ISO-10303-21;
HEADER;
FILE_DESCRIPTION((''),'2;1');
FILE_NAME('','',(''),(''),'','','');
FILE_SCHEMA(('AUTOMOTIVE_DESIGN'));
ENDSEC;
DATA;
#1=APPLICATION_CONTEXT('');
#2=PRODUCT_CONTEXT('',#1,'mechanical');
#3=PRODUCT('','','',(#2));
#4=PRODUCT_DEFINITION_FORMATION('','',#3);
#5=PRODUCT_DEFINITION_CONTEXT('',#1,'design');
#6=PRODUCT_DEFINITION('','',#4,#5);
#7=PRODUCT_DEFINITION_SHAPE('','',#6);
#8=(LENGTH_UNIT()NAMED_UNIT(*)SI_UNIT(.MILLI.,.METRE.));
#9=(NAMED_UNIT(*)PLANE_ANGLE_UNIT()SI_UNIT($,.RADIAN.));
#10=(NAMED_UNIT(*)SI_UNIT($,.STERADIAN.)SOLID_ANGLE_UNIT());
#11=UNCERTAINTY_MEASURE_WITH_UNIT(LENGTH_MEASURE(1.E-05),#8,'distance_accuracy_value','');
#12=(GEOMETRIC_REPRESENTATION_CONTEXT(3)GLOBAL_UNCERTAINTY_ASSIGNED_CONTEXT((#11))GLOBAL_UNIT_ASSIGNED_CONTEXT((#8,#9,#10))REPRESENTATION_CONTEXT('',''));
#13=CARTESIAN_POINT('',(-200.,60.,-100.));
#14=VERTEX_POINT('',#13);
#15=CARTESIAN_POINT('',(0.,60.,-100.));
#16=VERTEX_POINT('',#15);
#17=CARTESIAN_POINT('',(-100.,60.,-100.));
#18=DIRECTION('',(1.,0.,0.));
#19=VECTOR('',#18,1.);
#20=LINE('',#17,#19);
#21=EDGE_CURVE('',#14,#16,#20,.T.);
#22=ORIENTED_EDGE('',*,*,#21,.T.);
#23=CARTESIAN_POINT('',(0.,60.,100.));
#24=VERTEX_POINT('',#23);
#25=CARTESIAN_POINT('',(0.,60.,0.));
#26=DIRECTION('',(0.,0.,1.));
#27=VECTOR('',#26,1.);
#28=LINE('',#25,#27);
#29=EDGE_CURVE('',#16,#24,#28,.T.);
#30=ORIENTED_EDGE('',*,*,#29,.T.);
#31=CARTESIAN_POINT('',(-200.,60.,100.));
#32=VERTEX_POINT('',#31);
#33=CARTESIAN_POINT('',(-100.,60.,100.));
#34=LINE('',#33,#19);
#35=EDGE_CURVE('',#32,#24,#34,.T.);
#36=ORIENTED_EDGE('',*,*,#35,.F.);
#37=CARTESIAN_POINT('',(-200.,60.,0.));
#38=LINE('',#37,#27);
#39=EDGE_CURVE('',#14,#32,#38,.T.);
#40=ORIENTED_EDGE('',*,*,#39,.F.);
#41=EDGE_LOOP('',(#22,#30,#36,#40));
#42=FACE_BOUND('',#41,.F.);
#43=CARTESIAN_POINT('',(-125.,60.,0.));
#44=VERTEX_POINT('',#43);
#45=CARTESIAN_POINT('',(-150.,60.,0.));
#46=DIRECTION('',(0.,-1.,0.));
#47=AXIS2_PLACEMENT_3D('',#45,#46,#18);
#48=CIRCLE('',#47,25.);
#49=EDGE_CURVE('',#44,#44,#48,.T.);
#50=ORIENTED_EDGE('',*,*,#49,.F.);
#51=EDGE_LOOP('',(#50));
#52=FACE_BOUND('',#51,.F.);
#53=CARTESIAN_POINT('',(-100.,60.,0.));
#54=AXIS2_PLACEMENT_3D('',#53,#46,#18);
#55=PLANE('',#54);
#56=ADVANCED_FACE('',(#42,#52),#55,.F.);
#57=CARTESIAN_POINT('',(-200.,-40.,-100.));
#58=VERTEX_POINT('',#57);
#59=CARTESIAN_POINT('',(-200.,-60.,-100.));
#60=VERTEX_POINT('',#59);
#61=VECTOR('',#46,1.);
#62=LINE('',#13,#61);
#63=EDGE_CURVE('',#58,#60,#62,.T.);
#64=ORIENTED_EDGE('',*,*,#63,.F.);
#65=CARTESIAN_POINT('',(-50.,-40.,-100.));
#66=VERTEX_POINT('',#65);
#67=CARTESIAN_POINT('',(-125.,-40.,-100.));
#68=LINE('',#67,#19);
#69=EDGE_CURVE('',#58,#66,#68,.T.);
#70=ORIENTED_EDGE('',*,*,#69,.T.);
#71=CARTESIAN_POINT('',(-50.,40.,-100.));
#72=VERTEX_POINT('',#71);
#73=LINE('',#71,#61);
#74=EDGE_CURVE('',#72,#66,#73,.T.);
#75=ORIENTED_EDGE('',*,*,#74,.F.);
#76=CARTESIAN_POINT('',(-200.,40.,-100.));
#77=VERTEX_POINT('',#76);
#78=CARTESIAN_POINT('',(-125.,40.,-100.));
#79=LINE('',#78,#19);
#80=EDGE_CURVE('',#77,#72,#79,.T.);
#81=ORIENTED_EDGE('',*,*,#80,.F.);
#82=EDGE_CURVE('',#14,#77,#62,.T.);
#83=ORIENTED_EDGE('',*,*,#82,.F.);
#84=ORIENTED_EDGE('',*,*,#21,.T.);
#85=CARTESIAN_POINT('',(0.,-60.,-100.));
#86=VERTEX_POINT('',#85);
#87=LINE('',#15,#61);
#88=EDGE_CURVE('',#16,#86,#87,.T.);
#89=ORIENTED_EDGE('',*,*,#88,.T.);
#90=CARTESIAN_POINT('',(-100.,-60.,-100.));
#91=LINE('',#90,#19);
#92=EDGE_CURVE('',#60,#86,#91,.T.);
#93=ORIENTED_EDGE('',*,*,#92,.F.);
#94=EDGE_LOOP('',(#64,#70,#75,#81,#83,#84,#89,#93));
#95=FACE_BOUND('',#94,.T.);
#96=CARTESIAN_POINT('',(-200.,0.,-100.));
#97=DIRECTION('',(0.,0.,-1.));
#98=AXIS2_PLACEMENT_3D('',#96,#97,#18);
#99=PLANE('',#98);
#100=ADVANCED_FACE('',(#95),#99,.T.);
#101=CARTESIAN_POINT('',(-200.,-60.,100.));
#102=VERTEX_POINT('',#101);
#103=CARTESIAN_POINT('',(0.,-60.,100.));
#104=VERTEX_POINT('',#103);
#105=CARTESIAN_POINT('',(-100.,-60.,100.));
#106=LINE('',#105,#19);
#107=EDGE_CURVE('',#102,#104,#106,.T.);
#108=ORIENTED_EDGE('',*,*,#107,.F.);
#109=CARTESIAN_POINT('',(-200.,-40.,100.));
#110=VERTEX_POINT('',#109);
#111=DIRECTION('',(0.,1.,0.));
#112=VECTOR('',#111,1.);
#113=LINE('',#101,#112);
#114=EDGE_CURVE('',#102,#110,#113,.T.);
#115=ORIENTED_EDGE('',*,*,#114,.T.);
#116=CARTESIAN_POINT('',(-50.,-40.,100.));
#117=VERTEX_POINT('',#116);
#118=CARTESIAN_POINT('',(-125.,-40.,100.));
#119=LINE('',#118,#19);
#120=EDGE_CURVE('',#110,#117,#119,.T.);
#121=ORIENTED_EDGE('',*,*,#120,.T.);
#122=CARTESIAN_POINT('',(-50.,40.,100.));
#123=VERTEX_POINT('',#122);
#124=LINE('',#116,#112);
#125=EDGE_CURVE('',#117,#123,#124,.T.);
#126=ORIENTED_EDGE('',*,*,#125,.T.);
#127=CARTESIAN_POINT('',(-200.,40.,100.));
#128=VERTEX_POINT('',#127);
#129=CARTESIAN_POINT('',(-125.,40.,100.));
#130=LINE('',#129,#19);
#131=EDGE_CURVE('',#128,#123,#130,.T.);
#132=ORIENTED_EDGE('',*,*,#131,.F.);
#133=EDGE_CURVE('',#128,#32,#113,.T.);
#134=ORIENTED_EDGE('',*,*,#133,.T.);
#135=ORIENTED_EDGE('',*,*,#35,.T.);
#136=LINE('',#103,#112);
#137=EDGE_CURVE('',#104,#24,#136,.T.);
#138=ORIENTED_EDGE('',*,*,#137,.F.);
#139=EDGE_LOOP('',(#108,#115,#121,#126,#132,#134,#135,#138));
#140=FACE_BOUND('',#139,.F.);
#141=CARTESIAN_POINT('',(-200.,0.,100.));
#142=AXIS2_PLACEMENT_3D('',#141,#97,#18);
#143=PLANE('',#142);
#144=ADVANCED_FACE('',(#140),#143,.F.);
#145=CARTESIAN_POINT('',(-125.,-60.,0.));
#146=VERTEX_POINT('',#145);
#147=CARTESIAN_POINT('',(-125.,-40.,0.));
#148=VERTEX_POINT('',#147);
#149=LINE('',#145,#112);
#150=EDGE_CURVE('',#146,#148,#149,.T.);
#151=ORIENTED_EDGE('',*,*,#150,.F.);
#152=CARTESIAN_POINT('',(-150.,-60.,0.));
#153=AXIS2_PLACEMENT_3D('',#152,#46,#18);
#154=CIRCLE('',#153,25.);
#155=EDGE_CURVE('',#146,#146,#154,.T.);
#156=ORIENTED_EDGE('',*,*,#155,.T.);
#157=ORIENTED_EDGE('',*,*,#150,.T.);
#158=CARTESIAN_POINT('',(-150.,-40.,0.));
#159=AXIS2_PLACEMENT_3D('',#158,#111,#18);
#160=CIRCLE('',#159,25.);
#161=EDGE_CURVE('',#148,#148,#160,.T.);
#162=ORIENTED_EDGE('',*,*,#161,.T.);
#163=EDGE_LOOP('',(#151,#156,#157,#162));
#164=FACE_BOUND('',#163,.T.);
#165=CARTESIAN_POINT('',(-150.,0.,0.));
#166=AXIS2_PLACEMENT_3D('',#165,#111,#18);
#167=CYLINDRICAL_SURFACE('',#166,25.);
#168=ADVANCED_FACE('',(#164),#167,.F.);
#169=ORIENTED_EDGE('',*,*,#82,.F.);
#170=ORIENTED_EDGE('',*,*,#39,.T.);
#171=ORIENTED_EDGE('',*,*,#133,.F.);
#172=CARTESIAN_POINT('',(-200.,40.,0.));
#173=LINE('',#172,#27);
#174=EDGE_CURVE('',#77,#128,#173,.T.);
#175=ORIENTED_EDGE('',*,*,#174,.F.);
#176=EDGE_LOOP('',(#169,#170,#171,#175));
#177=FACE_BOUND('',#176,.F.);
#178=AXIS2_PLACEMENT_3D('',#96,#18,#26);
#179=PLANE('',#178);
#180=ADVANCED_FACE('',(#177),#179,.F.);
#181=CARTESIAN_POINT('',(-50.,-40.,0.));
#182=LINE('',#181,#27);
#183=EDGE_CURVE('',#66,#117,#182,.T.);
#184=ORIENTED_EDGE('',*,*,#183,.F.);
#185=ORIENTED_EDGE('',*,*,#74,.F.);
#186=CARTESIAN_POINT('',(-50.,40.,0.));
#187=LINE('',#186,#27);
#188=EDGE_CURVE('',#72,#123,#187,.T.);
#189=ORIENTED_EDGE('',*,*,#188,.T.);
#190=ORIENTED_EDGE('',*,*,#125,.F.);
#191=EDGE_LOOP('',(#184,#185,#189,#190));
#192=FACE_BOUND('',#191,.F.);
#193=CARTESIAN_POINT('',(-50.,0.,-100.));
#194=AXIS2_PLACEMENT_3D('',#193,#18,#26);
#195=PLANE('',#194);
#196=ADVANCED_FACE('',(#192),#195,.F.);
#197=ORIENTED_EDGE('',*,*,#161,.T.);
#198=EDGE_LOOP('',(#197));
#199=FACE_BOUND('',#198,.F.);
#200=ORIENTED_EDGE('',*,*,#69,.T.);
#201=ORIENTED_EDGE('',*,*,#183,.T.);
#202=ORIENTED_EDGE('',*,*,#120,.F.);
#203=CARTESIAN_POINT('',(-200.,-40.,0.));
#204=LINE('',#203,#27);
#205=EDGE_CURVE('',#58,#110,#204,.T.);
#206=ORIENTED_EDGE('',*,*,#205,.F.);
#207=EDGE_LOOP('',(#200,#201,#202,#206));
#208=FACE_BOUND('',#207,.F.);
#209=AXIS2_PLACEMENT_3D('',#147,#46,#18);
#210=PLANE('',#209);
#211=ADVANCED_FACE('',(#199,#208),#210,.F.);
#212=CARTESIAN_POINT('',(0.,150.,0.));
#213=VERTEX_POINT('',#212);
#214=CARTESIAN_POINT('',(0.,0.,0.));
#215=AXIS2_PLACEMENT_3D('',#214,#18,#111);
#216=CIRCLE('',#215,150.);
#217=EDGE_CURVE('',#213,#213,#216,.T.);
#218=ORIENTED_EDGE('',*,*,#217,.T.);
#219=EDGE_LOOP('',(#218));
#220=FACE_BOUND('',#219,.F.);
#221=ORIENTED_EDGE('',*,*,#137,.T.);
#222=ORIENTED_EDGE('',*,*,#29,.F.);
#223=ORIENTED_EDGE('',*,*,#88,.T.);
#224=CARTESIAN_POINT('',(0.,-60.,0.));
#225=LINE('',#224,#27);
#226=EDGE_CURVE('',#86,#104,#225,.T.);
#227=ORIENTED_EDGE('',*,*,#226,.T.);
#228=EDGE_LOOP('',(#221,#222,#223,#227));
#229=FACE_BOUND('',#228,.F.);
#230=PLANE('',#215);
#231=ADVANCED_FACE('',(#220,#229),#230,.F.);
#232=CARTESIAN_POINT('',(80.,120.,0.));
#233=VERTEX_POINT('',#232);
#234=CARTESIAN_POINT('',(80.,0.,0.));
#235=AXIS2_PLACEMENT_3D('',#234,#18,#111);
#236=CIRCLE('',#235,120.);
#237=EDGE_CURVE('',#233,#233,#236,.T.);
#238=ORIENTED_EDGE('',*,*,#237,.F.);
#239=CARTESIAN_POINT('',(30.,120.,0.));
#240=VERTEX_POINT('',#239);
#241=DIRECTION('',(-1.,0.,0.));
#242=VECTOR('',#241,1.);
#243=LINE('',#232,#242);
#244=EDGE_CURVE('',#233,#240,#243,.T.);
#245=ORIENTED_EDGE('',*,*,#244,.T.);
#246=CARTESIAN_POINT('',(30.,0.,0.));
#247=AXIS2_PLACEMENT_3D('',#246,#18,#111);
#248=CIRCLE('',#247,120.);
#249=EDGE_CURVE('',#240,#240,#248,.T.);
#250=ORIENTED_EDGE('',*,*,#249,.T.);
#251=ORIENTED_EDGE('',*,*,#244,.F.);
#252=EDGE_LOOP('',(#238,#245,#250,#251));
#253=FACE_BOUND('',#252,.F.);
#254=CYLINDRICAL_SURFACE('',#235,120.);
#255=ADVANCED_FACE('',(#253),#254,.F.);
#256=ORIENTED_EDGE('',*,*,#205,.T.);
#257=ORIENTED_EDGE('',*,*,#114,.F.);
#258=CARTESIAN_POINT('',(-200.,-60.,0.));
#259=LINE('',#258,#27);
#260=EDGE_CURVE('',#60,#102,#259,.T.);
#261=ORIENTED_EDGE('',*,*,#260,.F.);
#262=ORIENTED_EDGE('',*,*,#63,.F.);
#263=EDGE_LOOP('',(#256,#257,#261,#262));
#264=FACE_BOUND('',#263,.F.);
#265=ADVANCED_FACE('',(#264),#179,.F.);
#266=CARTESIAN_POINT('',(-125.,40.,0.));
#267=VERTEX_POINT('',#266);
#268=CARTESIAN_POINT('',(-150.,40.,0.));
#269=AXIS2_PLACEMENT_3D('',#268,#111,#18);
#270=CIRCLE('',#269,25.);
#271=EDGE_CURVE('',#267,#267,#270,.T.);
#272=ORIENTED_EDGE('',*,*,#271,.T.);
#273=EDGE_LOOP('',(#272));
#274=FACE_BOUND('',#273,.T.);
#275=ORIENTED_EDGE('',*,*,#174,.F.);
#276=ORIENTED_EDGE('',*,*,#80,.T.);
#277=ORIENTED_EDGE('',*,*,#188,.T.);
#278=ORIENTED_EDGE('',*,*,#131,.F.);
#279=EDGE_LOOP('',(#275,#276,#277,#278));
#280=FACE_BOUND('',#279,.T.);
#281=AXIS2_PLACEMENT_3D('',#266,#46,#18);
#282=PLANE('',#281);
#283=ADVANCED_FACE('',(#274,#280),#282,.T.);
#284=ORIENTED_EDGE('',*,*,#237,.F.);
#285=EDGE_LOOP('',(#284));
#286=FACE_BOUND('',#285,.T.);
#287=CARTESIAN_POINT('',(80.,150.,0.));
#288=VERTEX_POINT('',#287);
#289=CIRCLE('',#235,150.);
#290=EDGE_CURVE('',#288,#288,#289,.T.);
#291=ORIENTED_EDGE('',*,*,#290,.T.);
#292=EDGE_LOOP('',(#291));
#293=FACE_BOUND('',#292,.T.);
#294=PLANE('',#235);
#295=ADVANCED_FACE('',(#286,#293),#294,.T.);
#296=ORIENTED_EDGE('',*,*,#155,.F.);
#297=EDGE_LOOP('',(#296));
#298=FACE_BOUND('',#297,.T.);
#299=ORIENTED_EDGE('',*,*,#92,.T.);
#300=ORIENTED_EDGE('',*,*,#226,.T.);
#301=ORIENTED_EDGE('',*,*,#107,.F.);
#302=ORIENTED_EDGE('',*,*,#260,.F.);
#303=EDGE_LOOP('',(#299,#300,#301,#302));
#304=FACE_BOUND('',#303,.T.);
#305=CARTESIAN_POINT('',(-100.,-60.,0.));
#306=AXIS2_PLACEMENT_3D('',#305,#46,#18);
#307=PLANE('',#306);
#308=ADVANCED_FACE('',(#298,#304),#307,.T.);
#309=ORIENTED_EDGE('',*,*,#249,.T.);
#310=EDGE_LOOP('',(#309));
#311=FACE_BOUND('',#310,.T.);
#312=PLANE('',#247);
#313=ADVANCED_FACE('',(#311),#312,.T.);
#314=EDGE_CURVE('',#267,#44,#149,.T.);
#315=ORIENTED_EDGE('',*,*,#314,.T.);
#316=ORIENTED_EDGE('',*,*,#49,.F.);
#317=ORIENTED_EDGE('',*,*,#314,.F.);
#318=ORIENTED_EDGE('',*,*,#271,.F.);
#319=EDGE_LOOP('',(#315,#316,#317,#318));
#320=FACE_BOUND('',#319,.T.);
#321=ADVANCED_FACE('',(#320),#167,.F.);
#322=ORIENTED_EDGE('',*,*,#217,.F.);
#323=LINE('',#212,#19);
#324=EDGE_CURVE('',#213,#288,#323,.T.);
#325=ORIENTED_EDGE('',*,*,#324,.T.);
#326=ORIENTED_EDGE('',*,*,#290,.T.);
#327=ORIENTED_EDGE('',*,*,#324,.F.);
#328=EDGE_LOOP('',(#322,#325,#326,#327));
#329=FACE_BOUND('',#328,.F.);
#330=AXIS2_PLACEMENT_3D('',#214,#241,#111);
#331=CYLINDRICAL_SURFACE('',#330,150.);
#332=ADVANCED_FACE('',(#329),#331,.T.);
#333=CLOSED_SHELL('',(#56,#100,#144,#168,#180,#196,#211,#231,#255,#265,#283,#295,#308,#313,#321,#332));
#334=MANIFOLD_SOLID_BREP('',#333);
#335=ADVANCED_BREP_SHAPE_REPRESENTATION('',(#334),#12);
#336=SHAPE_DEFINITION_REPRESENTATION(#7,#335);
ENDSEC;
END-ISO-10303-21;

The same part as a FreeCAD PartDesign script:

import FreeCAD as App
import Part
import Sketcher
Q = App.Units.Quantity


def add_polygon(sketch, points):
    """Adds a closed chain of lines whose ends are joined by coincident constraints."""
    first, n = sketch.GeometryCount, len(points)
    for a, b in zip(points, points[1:] + points[:1]):
        sketch.addGeometry(Part.LineSegment(App.Vector(*a, 0), App.Vector(*b, 0)), False)
    for i in range(n):
        sketch.addConstraint(Sketcher.Constraint("Coincident", first + i, 2, first + (i + 1) % n, 1))

doc = App.newDocument("Part")
body = doc.addObject("PartDesign::Body", "Body")

# Sketch on XZ plane
sketch1 = doc.addObject("Sketcher::SketchObject", "Sketch")
body.addObject(sketch1)
sketch1.AttachmentSupport = (doc.XZ_Plane, [""])
sketch1.MapMode = "FlatFace"
add_polygon(sketch1, [(-200, 100), (-200, -100), (0, -100), (0, 100)])  # lines 0-3
sketch1.addGeometry(Part.Circle(App.Vector(-150, 0, 0), App.Vector(0, 0, 1), 25), False)  # 4
sketch1.addConstraint([
    Sketcher.Constraint("Vertical", 0),
    Sketcher.Constraint("Horizontal", 1),
    Sketcher.Constraint("Vertical", 2),
    Sketcher.Constraint("Horizontal", 3),
    Sketcher.Constraint("Symmetric", 1, 2, 2, 2, -1, 1),
    Sketcher.Constraint("PointOnObject", 4, 3, -1),
    Sketcher.Constraint("Equal", 3, 0),
    Sketcher.Constraint("Diameter", 4, Q("50 mm")),
    Sketcher.Constraint("DistanceX", 1, 1, 1, 2, Q("200 mm")),
    Sketcher.Constraint("DistanceX", 4, 3, -1, 1, Q("150 mm")),
])
pad1 = doc.addObject("PartDesign::Pad", "Pad")
body.addObject(pad1)
pad1.Profile = sketch1
pad1.Length = 120
pad1.Midplane = True

# Sketch on XZ plane
sketch2 = doc.addObject("Sketcher::SketchObject", "Sketch001")
body.addObject(sketch2)
sketch2.AttachmentSupport = (doc.XZ_Plane, [""])
sketch2.MapMode = "FlatFace"
add_polygon(sketch2, [(-200, 100), (-200, -100), (-50, -100), (-50, 100)])  # lines 0-3
sketch2.addConstraint([
    Sketcher.Constraint("Vertical", 0),
    Sketcher.Constraint("Horizontal", 1),
    Sketcher.Constraint("Vertical", 2),
    Sketcher.Constraint("Horizontal", 3),
    Sketcher.Constraint("DistanceX", 1, 1, 1, 2, Q("150 mm")),
    Sketcher.Constraint("DistanceY", 0, 2, 0, 1, Q("200 mm")),
    Sketcher.Constraint("DistanceX", 0, 2, -1, 1, Q("200 mm")),
    Sketcher.Constraint("DistanceY", 0, 2, -1, 1, Q("100 mm")),
])
pocket1 = doc.addObject("PartDesign::Pocket", "Pocket")
body.addObject(pocket1)
pocket1.Profile = sketch2
pocket1.Length = 80
pocket1.Midplane = True

# Sketch on YZ plane
sketch3 = doc.addObject("Sketcher::SketchObject", "Sketch002")
body.addObject(sketch3)
sketch3.AttachmentSupport = (doc.YZ_Plane, [""])
sketch3.MapMode = "FlatFace"
sketch3.addGeometry(Part.Circle(App.Vector(0, 0, 0), App.Vector(0, 0, 1), 150), False)
sketch3.addConstraint([
    Sketcher.Constraint("Coincident", 0, 3, -1, 1),
    Sketcher.Constraint("Diameter", 0, Q("300 mm")),
])
pad2 = doc.addObject("PartDesign::Pad", "Pad001")
body.addObject(pad2)
pad2.Profile = sketch3
pad2.Length = 80

# Sketch on YZ plane
sketch4 = doc.addObject("Sketcher::SketchObject", "Sketch003")
body.addObject(sketch4)
sketch4.AttachmentSupport = (doc.YZ_Plane, [""])
sketch4.MapMode = "FlatFace"
sketch4.AttachmentOffset = App.Placement(App.Vector(0, 0, 80), App.Rotation())
sketch4.addGeometry(Part.Circle(App.Vector(0, 0, 0), App.Vector(0, 0, 1), 120), False)
sketch4.addConstraint([
    Sketcher.Constraint("Coincident", 0, 3, -1, 1),
    Sketcher.Constraint("Diameter", 0, Q("240 mm")),
])
pocket2 = doc.addObject("PartDesign::Pocket", "Pocket001")
body.addObject(pocket2)
pocket2.Profile = sketch4
pocket2.Length = 50

doc.recompute()
